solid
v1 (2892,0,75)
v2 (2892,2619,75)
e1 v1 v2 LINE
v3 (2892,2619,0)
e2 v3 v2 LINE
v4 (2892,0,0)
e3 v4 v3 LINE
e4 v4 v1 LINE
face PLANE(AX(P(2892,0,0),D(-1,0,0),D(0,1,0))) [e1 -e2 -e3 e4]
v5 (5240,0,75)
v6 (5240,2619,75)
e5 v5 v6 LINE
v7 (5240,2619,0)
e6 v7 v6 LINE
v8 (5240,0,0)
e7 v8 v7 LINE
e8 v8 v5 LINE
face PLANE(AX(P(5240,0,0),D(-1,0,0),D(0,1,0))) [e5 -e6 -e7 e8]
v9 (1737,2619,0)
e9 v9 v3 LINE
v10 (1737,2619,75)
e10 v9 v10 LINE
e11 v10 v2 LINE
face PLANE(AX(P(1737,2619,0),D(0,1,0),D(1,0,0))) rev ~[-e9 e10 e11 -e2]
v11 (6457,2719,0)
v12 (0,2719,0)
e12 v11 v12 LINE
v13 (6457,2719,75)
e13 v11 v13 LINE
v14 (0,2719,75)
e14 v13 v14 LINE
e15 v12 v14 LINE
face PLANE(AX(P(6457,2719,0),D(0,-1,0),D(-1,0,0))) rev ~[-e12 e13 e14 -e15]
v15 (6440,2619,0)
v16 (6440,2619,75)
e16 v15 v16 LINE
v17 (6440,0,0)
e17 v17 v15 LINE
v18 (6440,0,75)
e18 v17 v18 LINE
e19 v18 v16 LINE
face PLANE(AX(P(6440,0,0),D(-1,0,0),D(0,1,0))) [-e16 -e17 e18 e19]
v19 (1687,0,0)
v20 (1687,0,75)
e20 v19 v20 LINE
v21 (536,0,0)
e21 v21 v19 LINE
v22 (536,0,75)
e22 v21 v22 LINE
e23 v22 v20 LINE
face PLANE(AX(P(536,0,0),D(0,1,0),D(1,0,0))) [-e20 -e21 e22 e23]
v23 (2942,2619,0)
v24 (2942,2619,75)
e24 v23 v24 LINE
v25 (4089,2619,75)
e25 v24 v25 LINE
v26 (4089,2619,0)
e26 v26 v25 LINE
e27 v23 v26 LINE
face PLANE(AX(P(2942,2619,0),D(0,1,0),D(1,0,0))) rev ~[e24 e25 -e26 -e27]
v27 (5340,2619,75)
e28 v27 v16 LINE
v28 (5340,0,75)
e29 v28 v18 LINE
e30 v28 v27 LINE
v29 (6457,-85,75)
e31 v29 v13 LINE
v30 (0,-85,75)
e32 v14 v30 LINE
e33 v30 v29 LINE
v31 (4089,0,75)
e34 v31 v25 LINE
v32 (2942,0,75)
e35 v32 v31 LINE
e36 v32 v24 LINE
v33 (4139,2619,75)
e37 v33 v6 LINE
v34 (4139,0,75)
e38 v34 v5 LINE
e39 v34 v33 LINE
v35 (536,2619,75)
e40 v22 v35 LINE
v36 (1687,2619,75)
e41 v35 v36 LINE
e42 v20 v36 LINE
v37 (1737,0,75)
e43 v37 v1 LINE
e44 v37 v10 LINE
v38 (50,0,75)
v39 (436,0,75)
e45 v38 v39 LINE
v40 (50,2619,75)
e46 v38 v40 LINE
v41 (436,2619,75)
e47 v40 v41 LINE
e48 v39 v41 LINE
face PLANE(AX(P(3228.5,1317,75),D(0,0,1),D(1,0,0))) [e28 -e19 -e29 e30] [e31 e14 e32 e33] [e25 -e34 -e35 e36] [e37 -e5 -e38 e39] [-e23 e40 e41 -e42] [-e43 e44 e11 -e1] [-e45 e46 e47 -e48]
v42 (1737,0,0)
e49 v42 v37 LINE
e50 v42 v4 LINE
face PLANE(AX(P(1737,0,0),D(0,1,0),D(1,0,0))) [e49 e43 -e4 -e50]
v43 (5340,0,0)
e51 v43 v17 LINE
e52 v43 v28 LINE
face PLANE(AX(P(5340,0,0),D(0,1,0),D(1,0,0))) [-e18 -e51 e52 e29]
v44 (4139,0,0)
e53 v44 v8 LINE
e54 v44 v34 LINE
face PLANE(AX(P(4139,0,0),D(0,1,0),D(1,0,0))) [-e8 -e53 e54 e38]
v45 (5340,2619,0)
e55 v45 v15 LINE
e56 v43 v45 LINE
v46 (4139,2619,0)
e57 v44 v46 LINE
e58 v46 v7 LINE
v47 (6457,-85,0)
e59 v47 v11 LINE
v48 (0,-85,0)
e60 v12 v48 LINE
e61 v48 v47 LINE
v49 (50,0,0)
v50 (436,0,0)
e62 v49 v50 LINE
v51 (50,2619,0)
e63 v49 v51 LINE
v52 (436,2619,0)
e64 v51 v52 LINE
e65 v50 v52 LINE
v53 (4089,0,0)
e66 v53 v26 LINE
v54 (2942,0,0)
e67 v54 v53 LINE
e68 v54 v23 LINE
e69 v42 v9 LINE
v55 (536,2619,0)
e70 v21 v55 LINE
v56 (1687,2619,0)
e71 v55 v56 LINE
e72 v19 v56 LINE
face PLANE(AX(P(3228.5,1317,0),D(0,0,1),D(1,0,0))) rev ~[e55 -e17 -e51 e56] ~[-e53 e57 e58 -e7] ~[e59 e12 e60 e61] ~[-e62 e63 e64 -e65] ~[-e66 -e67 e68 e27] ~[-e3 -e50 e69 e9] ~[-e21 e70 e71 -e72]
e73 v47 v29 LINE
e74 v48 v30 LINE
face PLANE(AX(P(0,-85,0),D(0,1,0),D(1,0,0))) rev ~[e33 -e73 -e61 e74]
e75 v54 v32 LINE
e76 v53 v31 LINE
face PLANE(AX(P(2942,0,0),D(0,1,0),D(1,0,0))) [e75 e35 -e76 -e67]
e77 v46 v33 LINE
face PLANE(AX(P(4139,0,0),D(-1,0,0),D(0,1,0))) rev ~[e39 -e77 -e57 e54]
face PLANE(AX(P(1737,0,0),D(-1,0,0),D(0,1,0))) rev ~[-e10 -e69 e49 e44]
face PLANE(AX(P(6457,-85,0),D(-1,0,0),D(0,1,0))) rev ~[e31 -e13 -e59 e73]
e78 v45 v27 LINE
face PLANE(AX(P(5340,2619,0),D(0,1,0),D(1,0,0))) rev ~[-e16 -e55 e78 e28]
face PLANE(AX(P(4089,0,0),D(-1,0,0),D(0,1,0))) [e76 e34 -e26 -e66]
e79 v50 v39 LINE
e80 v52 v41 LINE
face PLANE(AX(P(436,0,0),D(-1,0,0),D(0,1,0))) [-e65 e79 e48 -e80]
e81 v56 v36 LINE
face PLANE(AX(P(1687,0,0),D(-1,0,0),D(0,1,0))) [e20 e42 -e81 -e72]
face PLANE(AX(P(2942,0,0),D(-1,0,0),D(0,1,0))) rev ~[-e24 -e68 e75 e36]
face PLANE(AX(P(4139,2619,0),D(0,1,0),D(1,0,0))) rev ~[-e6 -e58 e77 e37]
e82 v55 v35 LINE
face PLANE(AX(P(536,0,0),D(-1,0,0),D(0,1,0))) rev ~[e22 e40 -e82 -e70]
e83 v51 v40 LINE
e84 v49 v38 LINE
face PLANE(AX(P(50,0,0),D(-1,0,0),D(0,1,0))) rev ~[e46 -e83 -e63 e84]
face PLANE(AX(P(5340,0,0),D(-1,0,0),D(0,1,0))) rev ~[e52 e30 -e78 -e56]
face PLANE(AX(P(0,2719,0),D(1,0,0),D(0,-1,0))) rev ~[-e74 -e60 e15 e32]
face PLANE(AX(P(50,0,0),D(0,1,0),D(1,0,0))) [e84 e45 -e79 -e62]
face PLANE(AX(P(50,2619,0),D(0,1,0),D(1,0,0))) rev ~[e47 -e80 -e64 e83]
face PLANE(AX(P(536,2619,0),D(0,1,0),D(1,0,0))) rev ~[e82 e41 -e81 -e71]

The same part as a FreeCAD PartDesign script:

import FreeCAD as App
import Part
import Sketcher
Q = App.Units.Quantity


def add_polygon(sketch, points):
    """Adds a closed chain of lines whose ends are joined by coincident constraints."""
    first, n = sketch.GeometryCount, len(points)
    for a, b in zip(points, points[1:] + points[:1]):
        sketch.addGeometry(Part.LineSegment(App.Vector(*a, 0), App.Vector(*b, 0)), False)
    for i in range(n):
        sketch.addConstraint(Sketcher.Constraint("Coincident", first + i, 2, first + (i + 1) % n, 1))

doc = App.newDocument("Part")
body = doc.addObject("PartDesign::Body", "Body")

# Sketch on XY plane
sketch1 = doc.addObject("Sketcher::SketchObject", "Sketch")
body.addObject(sketch1)
sketch1.AttachmentSupport = (doc.XY_Plane, [""])
sketch1.MapMode = "FlatFace"
add_polygon(sketch1, [(0, 2719), (0, -85), (6457, -85), (6457, 2719)])  # lines 0-3
add_polygon(sketch1, [(436, 0), (50, 0), (50, 2619), (436, 2619)])  # lines 4-7
add_polygon(sketch1, [(1687, 0), (536, 0), (536, 2619), (1687, 2619)])  # lines 8-11
add_polygon(sketch1, [(2892, 0), (1737, 0), (1737, 2619), (2892, 2619)])  # lines 12-15
add_polygon(sketch1, [(4089, 0), (2942, 0), (2942, 2619), (4089, 2619)])  # lines 16-19
add_polygon(sketch1, [(5240, 0), (4139, 0), (4139, 2619), (5240, 2619)])  # lines 20-23
add_polygon(sketch1, [(6440, 0), (5340, 0), (5340, 2619), (6440, 2619)])  # lines 24-27
sketch1.addConstraint([
    Sketcher.Constraint("Vertical", 0),
    Sketcher.Constraint("Horizontal", 1),
    Sketcher.Constraint("Vertical", 2),
    Sketcher.Constraint("Horizontal", 3),
    Sketcher.Constraint("Horizontal", 4),
    Sketcher.Constraint("Vertical", 5),
    Sketcher.Constraint("Horizontal", 6),
    Sketcher.Constraint("Vertical", 7),
    Sketcher.Constraint("Horizontal", 8),
    Sketcher.Constraint("Vertical", 9),
    Sketcher.Constraint("Horizontal", 10),
    Sketcher.Constraint("Vertical", 11),
    Sketcher.Constraint("Horizontal", 12),
    Sketcher.Constraint("Vertical", 13),
    Sketcher.Constraint("Horizontal", 14),
    Sketcher.Constraint("Vertical", 15),
    Sketcher.Constraint("Horizontal", 16),
    Sketcher.Constraint("Vertical", 17),
    Sketcher.Constraint("Horizontal", 18),
    Sketcher.Constraint("Vertical", 19),
    Sketcher.Constraint("Horizontal", 20),
    Sketcher.Constraint("Vertical", 21),
    Sketcher.Constraint("Horizontal", 22),
    Sketcher.Constraint("Vertical", 23),
    Sketcher.Constraint("Horizontal", 24),
    Sketcher.Constraint("Vertical", 25),
    Sketcher.Constraint("Horizontal", 26),
    Sketcher.Constraint("Vertical", 27),
    Sketcher.Constraint("PointOnObject", 0, 2, -2),
    Sketcher.Constraint("PointOnObject", 4, 2, -1),
    Sketcher.Constraint("PointOnObject", 8, 2, -1),
    Sketcher.Constraint("PointOnObject", 12, 2, -1),
    Sketcher.Constraint("PointOnObject", 16, 2, -1),
    Sketcher.Constraint("PointOnObject", 20, 2, -1),
    Sketcher.Constraint("PointOnObject", 24, 2, -1),
    Sketcher.Constraint("Horizontal", 6, 2, 9, 2),
    Sketcher.Constraint("Horizontal", 10, 2, 13, 2),
    Sketcher.Constraint("Horizontal", 14, 2, 17, 2),
    Sketcher.Constraint("Horizontal", 18, 2, 21, 2),
    Sketcher.Constraint("Horizontal", 22, 2, 25, 2),
    Sketcher.Constraint("DistanceX", 1, 1, 1, 2, Q("6457 mm")),
    Sketcher.Constraint("DistanceX", 4, 2, 4, 1, Q("386 mm")),
    Sketcher.Constraint("DistanceX", 8, 2, 8, 1, Q("1151 mm")),
    Sketcher.Constraint("DistanceX", 12, 2, 12, 1, Q("1155 mm")),
    Sketcher.Constraint("DistanceX", 16, 2, 16, 1, Q("1147 mm")),
    Sketcher.Constraint("DistanceX", 20, 2, 20, 1, Q("1101 mm")),
    Sketcher.Constraint("DistanceX", 24, 2, 24, 1, Q("1100 mm")),
    Sketcher.Constraint("DistanceY", 0, 2, 0, 1, Q("2804 mm")),
    Sketcher.Constraint("DistanceY", 5, 1, 5, 2, Q("2619 mm")),
    Sketcher.Constraint("DistanceY", 0, 2, -1, 1, Q("85 mm")),
    Sketcher.Constraint("DistanceX", -1, 1, 4, 2, Q("50 mm")),
    Sketcher.Constraint("DistanceX", -1, 1, 8, 2, Q("536 mm")),
    Sketcher.Constraint("DistanceX", -1, 1, 12, 2, Q("1737 mm")),
    Sketcher.Constraint("DistanceX", -1, 1, 16, 2, Q("2942 mm")),
    Sketcher.Constraint("DistanceX", -1, 1, 20, 2, Q("4139 mm")),
    Sketcher.Constraint("DistanceX", -1, 1, 24, 2, Q("5340 mm")),
])
pad1 = doc.addObject("PartDesign::Pad", "Pad")
body.addObject(pad1)
pad1.Profile = sketch1
pad1.Length = 75

doc.recompute()
